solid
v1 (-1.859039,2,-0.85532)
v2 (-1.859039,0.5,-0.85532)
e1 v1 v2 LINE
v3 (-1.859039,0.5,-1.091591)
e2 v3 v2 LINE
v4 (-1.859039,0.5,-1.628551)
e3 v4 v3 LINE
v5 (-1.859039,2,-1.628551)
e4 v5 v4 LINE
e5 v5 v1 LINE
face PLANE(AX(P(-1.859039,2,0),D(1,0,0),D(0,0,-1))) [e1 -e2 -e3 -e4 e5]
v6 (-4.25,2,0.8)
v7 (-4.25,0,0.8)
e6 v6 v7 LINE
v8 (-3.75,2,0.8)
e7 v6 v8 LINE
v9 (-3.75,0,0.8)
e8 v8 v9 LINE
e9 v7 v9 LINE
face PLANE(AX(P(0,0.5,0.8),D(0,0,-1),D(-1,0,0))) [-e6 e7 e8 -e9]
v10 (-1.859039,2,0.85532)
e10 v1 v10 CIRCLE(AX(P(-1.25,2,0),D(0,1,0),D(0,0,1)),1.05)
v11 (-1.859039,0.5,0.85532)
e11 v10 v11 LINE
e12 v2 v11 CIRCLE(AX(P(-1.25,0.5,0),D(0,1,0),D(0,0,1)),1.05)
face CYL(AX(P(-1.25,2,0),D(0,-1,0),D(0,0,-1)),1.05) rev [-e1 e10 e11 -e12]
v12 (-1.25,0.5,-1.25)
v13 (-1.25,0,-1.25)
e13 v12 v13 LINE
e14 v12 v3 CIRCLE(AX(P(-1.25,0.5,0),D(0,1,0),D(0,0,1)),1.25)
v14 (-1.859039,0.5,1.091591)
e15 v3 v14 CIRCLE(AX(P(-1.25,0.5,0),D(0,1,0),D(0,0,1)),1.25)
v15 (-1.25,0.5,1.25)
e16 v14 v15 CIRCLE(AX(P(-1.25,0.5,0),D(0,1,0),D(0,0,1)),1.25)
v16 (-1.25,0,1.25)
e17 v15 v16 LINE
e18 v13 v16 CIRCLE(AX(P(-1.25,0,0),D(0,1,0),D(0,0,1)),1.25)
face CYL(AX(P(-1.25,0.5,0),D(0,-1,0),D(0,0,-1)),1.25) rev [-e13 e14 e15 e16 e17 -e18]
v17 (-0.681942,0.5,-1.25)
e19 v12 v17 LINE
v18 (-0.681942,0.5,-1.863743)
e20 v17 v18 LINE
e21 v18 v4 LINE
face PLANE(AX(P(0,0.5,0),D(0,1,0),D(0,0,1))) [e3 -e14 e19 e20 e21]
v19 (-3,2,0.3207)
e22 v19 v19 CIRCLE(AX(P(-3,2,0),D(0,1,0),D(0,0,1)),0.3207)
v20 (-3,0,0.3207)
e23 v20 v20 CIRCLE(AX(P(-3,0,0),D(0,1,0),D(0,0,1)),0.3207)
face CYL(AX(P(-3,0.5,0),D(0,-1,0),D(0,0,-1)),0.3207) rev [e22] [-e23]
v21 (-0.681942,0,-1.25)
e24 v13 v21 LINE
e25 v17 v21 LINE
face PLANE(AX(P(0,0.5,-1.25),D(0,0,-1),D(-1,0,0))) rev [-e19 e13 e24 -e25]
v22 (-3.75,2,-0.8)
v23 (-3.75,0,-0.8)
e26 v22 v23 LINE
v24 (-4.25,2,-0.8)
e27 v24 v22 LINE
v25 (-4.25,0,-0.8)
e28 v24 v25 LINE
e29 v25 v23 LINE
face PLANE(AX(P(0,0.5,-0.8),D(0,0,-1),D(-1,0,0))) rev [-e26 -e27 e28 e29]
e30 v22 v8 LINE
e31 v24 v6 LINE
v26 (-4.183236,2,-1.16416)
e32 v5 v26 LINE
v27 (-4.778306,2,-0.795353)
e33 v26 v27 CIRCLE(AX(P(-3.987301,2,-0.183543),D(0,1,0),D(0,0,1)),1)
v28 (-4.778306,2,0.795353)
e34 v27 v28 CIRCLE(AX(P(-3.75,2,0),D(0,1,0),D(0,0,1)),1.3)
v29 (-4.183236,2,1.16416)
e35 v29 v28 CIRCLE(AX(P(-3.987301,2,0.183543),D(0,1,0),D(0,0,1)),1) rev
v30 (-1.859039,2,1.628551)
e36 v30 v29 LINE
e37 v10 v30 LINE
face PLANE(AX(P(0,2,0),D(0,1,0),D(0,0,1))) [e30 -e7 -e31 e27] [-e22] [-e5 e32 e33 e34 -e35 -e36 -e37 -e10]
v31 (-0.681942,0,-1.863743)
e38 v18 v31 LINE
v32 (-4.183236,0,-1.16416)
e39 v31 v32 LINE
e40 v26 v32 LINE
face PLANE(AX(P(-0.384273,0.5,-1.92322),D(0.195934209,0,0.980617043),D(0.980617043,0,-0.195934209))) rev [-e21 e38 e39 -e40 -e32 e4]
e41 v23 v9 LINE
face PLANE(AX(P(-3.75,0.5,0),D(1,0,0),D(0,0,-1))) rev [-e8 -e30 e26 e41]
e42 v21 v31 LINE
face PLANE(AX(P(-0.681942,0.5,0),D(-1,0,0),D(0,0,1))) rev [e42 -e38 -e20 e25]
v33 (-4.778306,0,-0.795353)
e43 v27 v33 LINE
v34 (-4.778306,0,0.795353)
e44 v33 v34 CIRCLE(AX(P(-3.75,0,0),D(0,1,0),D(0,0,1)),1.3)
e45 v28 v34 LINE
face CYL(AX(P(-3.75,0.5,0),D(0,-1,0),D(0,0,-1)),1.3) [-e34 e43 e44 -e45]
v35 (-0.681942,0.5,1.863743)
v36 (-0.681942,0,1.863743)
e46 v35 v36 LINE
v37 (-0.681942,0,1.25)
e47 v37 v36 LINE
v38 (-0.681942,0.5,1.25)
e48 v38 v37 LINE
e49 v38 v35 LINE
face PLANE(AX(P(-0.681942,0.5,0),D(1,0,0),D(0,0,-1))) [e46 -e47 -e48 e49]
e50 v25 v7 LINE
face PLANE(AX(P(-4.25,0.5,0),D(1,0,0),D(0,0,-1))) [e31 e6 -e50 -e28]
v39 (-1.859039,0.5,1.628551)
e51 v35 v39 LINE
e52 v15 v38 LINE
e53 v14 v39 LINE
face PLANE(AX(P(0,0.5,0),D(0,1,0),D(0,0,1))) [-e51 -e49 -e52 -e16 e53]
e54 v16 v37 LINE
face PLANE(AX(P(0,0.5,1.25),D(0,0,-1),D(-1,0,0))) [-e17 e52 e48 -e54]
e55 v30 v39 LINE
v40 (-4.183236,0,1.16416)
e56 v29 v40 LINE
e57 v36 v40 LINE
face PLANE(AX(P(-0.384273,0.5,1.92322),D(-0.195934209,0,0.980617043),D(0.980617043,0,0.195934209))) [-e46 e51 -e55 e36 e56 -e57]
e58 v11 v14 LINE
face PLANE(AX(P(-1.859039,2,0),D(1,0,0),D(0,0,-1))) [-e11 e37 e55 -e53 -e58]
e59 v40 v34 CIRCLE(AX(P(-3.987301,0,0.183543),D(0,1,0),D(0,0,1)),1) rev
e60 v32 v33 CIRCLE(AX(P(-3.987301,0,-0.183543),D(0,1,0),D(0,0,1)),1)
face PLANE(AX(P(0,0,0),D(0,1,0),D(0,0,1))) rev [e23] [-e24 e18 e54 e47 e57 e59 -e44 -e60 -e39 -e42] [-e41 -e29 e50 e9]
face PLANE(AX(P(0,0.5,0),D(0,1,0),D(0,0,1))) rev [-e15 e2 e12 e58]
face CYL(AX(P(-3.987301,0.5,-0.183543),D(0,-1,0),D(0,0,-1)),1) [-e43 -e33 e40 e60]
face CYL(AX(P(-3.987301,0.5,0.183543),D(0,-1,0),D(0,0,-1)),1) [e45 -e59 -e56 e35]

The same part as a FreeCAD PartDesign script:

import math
import FreeCAD as App
import Part
import Sketcher

V = App.Vector
Q = App.Units.Quantity


def add_polygon(sketch, points):
    """Adds a closed chain of lines whose ends are joined by coincident constraints."""
    first, n = sketch.GeometryCount, len(points)
    for a, b in zip(points, points[1:] + points[:1]):
        sketch.addGeometry(Part.LineSegment(App.Vector(*a, 0), App.Vector(*b, 0)), False)
    for i in range(n):
        sketch.addConstraint(Sketcher.Constraint("Coincident", first + i, 2, first + (i + 1) % n, 1))

doc = App.newDocument("Part")
params = doc.addObject("Spreadsheet::Sheet", "Params")
for row, (alias, value) in enumerate([
    ("sketch1_radius", "1 mm"),
    ("sketch1_radius2", "1.3 mm"),
    ("sketch1_radius3", "1.25 mm"),
    ("sketch1_width", "0.5 mm"),
    ("sketch1_height", "1.6 mm"),
    ("pad1_length", "0.5 mm"),
    ("sketch2_radius", "1 mm"),
    ("sketch2_radius2", "1.3 mm"),
    ("sketch2_radius3", "1.05 mm"),
    ("sketch2_width", "0.5 mm"),
    ("sketch2_height", "1.6 mm"),
    ("pad2_length", "1.5 mm"),
], start=1):
    params.set(f"A{row}", alias)
    params.set(f"B{row}", "=" + value)
    params.setAlias(f"B{row}", alias)

body = doc.addObject("PartDesign::Body", "Body")

# Sketch on XZ plane
sketch1 = body.newObject("Sketcher::SketchObject", "Sketch")
sketch1.AttachmentSupport = (doc.getObject("XZ_Plane"), [""])
sketch1.MapMode = "FlatFace"
sketch1.addGeometry(Part.ArcOfCircle(Part.Circle(V(-1.25, 0, 0), V(0, 0, 1), 1.25), math.radians(119), math.radians(241)), False)  # 0
sketch1.addGeometry(Part.ArcOfCircle(Part.Circle(V(-1.25, 0, 0), V(0, 0, 1), 1.25), math.radians(-119), math.radians(-90)), False)  # 1
sketch1.addGeometry(Part.LineSegment(V(-1.25, -1.25, 0), V(-0.68, -1.25, 0)), False)  # 2
sketch1.addGeometry(Part.LineSegment(V(-0.68, -1.25, 0), V(-0.68, -1.86, 0)), False)  # 3
sketch1.addGeometry(Part.LineSegment(V(-0.68, -1.86, 0), V(-1.25, -1.75, 0)), False)  # 4
sketch1.addGeometry(Part.LineSegment(V(-1.25, -1.75, 0), V(-1.86, -1.63, 0)), False)  # 5
sketch1.addGeometry(Part.LineSegment(V(-1.86, -1.63, 0), V(-4.18, -1.16, 0)), False)  # 6
sketch1.addGeometry(Part.ArcOfCircle(Part.Circle(V(-3.99, -0.18, 0), V(0, 0, 1), 1), math.radians(-142), math.radians(-101)), False)  # 7
sketch1.addGeometry(Part.ArcOfCircle(Part.Circle(V(-3.75, 0, 0), V(0, 0, 1), 1.3), math.radians(142), math.radians(218)), False)  # 8
sketch1.addGeometry(Part.ArcOfCircle(Part.Circle(V(-3.99, 0.18, 0), V(0, 0, 1), 1), math.radians(101), math.radians(142)), False)  # 9
sketch1.addGeometry(Part.LineSegment(V(-4.18, 1.16, 0), V(-1.86, 1.63, 0)), False)  # 10
sketch1.addGeometry(Part.LineSegment(V(-1.86, 1.63, 0), V(-1.25, 1.75, 0)), False)  # 11
sketch1.addGeometry(Part.LineSegment(V(-1.25, 1.75, 0), V(-0.68, 1.86, 0)), False)  # 12
sketch1.addGeometry(Part.LineSegment(V(-0.68, 1.86, 0), V(-0.68, 1.25, 0)), False)  # 13
sketch1.addGeometry(Part.LineSegment(V(-0.68, 1.25, 0), V(-1.25, 1.25, 0)), False)  # 14
sketch1.addGeometry(Part.ArcOfCircle(Part.Circle(V(-1.25, 0, 0), V(0, 0, 1), 1.25), math.radians(90), math.radians(119)), False)  # 15
add_polygon(sketch1, [(-3.75, 0.8), (-4.25, 0.8), (-4.25, -0.8), (-3.75, -0.8)])  # lines 16-19
sketch1.addGeometry(Part.Circle(V(-3, 0, 0), V(0, 0, 1), 0.32), False)  # 20
sketch1.addConstraint(Sketcher.Constraint("Tangent", 0, 2, 1, 1))
sketch1.addConstraint(Sketcher.Constraint("Tangent", 1, 2, 2, 1))
sketch1.addConstraint(Sketcher.Constraint("Coincident", 2, 2, 3, 1))
sketch1.addConstraint(Sketcher.Constraint("Coincident", 3, 2, 4, 1))
sketch1.addConstraint(Sketcher.Constraint("Coincident", 4, 2, 5, 1))
sketch1.addConstraint(Sketcher.Constraint("Coincident", 5, 2, 6, 1))
sketch1.addConstraint(Sketcher.Constraint("Tangent", 6, 2, 7, 2))
sketch1.addConstraint(Sketcher.Constraint("Tangent", 7, 1, 8, 2))
sketch1.addConstraint(Sketcher.Constraint("Tangent", 8, 1, 9, 2))
sketch1.addConstraint(Sketcher.Constraint("Tangent", 9, 1, 10, 1))
sketch1.addConstraint(Sketcher.Constraint("Coincident", 10, 2, 11, 1))
sketch1.addConstraint(Sketcher.Constraint("Coincident", 11, 2, 12, 1))
sketch1.addConstraint(Sketcher.Constraint("Coincident", 12, 2, 13, 1))
sketch1.addConstraint(Sketcher.Constraint("Coincident", 13, 2, 14, 1))
sketch1.addConstraint(Sketcher.Constraint("Tangent", 14, 2, 15, 1))
sketch1.addConstraint(Sketcher.Constraint("Tangent", 15, 2, 0, 1))
sketch1.addConstraint(Sketcher.Constraint("Horizontal", 2))
sketch1.addConstraint(Sketcher.Constraint("Vertical", 3))
sketch1.addConstraint(Sketcher.Constraint("Vertical", 13))
sketch1.addConstraint(Sketcher.Constraint("Horizontal", 14))
sketch1.addConstraint(Sketcher.Constraint("Horizontal", 16))
sketch1.addConstraint(Sketcher.Constraint("Vertical", 17))
sketch1.addConstraint(Sketcher.Constraint("Horizontal", 18))
sketch1.addConstraint(Sketcher.Constraint("Vertical", 19))
sketch1.addConstraint(Sketcher.Constraint("Equal", 0, 1))
sketch1.addConstraint(Sketcher.Constraint("Equal", 7, 9))
sketch1.addConstraint(Sketcher.Constraint("Equal", 1, 15))
sketch1.addConstraint(Sketcher.Constraint("Symmetric", 7, 3, 9, 3, -1))
sketch1.addConstraint(Sketcher.Constraint("Symmetric", 5, 2, 10, 2, -1))
sketch1.addConstraint(Sketcher.Constraint("Symmetric", 4, 2, 11, 2, -1))
sketch1.addConstraint(Sketcher.Constraint("Symmetric", 3, 2, 12, 2, -1))
sketch1.addConstraint(Sketcher.Constraint("Symmetric", 0, 2, 15, 2, -1))
sketch1.addConstraint(Sketcher.Constraint("PointOnObject", 20, 3, -1))
sketch1.addConstraint(Sketcher.Constraint("Parallel", 4, 5))
sketch1.addConstraint(Sketcher.Constraint("Parallel", 5, 6))
sketch1.addConstraint(Sketcher.Constraint("Vertical", 1, 2, 4, 2))
sketch1.addConstraint(Sketcher.Constraint("Vertical", 0, 2, 5, 2))
sketch1.addConstraint(Sketcher.Constraint("Vertical", 8, 3, 18, 2))
sketch1.addConstraint(Sketcher.Constraint("Radius", 7, Q("1 mm")))
sketch1.addConstraint(Sketcher.Constraint("Radius", 8, Q("1.3 mm")))
sketch1.addConstraint(Sketcher.Constraint("Radius", 0, Q("1.25 mm")))
sketch1.addConstraint(Sketcher.Constraint("DistanceX", 16, 2, 16, 1, Q("0.5 mm")))
sketch1.addConstraint(Sketcher.Constraint("DistanceY", 17, 2, 17, 1, Q("1.6 mm")))
sketch1.addConstraint(Sketcher.Constraint("DistanceX", 20, 3, -1, 1, Q("3 mm")))
sketch1.addConstraint(Sketcher.Constraint("Diameter", 20, Q("0.6414 mm")))
sketch1.addConstraint(Sketcher.Constraint("DistanceY", -1, 1, 16, 2, Q("0.8 mm")))
sketch1.addConstraint(Sketcher.Constraint("DistanceX", 8, 3, 1, 3, Q("2.5 mm")))
sketch1.addConstraint(Sketcher.Constraint("DistanceX", 0, 3, -1, 1, Q("1.25 mm")))
sketch1.addConstraint(Sketcher.Constraint("DistanceX", 2, 1, 2, 2, Q("0.568058 mm")))
sketch1.addConstraint(Sketcher.Constraint("DistanceX", 7, 3, -1, 1, Q("3.987301 mm")))
sketch1.addConstraint(Sketcher.Constraint("DistanceY", 3, 2, 3, 1, Q("0.613743 mm")))
sketch1.addConstraint(Sketcher.Constraint("DistanceX", 0, 2, -1, 1, Q("1.859039 mm")))
sketch1.setExpression("Constraints[42]", "Params.sketch1_radius")
sketch1.setExpression("Constraints[43]", "Params.sketch1_radius2")
sketch1.setExpression("Constraints[44]", "Params.sketch1_radius3")
sketch1.setExpression("Constraints[45]", "Params.sketch1_width")
sketch1.setExpression("Constraints[46]", "Params.sketch1_height")
pad1 = body.newObject("PartDesign::Pad", "Pad")
pad1.Profile = sketch1
pad1.setExpression("Length", "Params.pad1_length")
pad1.Reversed = True

# Sketch on XZ plane
sketch2 = body.newObject("Sketcher::SketchObject", "Sketch001")
sketch2.AttachmentSupport = (doc.getObject("XZ_Plane"), [""])
sketch2.MapMode = "FlatFace"
sketch2.AttachmentOffset = App.Placement(V(0, 0, -0.5), App.Rotation())
sketch2.addGeometry(Part.ArcOfCircle(Part.Circle(V(-1.25, 0, 0), V(0, 0, 1), 1.05), math.radians(125), math.radians(235)), False)  # 0
sketch2.addGeometry(Part.LineSegment(V(-1.86, -0.86, 0), V(-1.86, -1.63, 0)), False)  # 1
sketch2.addGeometry(Part.LineSegment(V(-1.86, -1.63, 0), V(-4.18, -1.16, 0)), False)  # 2
sketch2.addGeometry(Part.ArcOfCircle(Part.Circle(V(-3.99, -0.18, 0), V(0, 0, 1), 1), math.radians(-142), math.radians(-101)), False)  # 3
sketch2.addGeometry(Part.ArcOfCircle(Part.Circle(V(-3.75, 0, 0), V(0, 0, 1), 1.3), math.radians(142), math.radians(218)), False)  # 4
sketch2.addGeometry(Part.ArcOfCircle(Part.Circle(V(-3.99, 0.18, 0), V(0, 0, 1), 1), math.radians(101), math.radians(142)), False)  # 5
sketch2.addGeometry(Part.LineSegment(V(-4.18, 1.16, 0), V(-1.86, 1.63, 0)), False)  # 6
sketch2.addGeometry(Part.LineSegment(V(-1.86, 1.63, 0), V(-1.86, 0.86, 0)), False)  # 7
sketch2.addGeometry(Part.Circle(V(-3, 0, 0), V(0, 0, 1), 0.32), False)  # 8
add_polygon(sketch2, [(-3.75, 0.8), (-4.25, 0.8), (-4.25, -0.8), (-3.75, -0.8)])  # lines 9-12
sketch2.addConstraint(Sketcher.Constraint("Coincident", 0, 2, 1, 1))
sketch2.addConstraint(Sketcher.Constraint("Coincident", 1, 2, 2, 1))
sketch2.addConstraint(Sketcher.Constraint("Tangent", 2, 2, 3, 2))
sketch2.addConstraint(Sketcher.Constraint("Tangent", 3, 1, 4, 2))
sketch2.addConstraint(Sketcher.Constraint("Tangent", 4, 1, 5, 2))
sketch2.addConstraint(Sketcher.Constraint("Tangent", 5, 1, 6, 1))
sketch2.addConstraint(Sketcher.Constraint("Coincident", 6, 2, 7, 1))
sketch2.addConstraint(Sketcher.Constraint("Coincident", 7, 2, 0, 1))
sketch2.addConstraint(Sketcher.Constraint("Vertical", 1))
sketch2.addConstraint(Sketcher.Constraint("Vertical", 7))
sketch2.addConstraint(Sketcher.Constraint("Horizontal", 9))
sketch2.addConstraint(Sketcher.Constraint("Vertical", 10))
sketch2.addConstraint(Sketcher.Constraint("Horizontal", 11))
sketch2.addConstraint(Sketcher.Constraint("Vertical", 12))
sketch2.addConstraint(Sketcher.Constraint("Equal", 3, 5))
sketch2.addConstraint(Sketcher.Constraint("Symmetric", 3, 3, 5, 3, -1))
sketch2.addConstraint(Sketcher.Constraint("Symmetric", 1, 2, 6, 2, -1))
sketch2.addConstraint(Sketcher.Constraint("PointOnObject", 0, 3, -1))
sketch2.addConstraint(Sketcher.Constraint("PointOnObject", 8, 3, -1))
sketch2.addConstraint(Sketcher.Constraint("Vertical", 4, 3, 11, 2))
sketch2.addConstraint(Sketcher.Constraint("Radius", 3, Q("1 mm")))
sketch2.addConstraint(Sketcher.Constraint("Radius", 4, Q("1.3 mm")))
sketch2.addConstraint(Sketcher.Constraint("Radius", 0, Q("1.05 mm")))
sketch2.addConstraint(Sketcher.Constraint("DistanceX", 9, 2, 9, 1, Q("0.5 mm")))
sketch2.addConstraint(Sketcher.Constraint("DistanceY", 10, 2, 10, 1, Q("1.6 mm")))
sketch2.addConstraint(Sketcher.Constraint("DistanceX", 8, 3, -1, 1, Q("3 mm")))
sketch2.addConstraint(Sketcher.Constraint("Diameter", 8, Q("0.6414 mm")))
sketch2.addConstraint(Sketcher.Constraint("DistanceY", -1, 1, 9, 2, Q("0.8 mm")))
sketch2.addConstraint(Sketcher.Constraint("DistanceX", 4, 3, 0, 3, Q("2.5 mm")))
sketch2.addConstraint(Sketcher.Constraint("DistanceX", 0, 3, -1, 1, Q("1.25 mm")))
sketch2.addConstraint(Sketcher.Constraint("DistanceY", 1, 2, 1, 1, Q("0.773231 mm")))
sketch2.addConstraint(Sketcher.Constraint("DistanceX", 3, 3, -1, 1, Q("3.987301 mm")))
sketch2.addConstraint(Sketcher.Constraint("DistanceX", 0, 2, -1, 1, Q("1.859039 mm")))
sketch2.setExpression("Constraints[24]", "Params.sketch2_radius")
sketch2.setExpression("Constraints[25]", "Params.sketch2_radius2")
sketch2.setExpression("Constraints[26]", "Params.sketch2_radius3")
sketch2.setExpression("Constraints[27]", "Params.sketch2_width")
sketch2.setExpression("Constraints[28]", "Params.sketch2_height")
pad2 = body.newObject("PartDesign::Pad", "Pad001")
pad2.Profile = sketch2
pad2.setExpression("Length", "Params.pad2_length")
pad2.Reversed = True

doc.recompute()
